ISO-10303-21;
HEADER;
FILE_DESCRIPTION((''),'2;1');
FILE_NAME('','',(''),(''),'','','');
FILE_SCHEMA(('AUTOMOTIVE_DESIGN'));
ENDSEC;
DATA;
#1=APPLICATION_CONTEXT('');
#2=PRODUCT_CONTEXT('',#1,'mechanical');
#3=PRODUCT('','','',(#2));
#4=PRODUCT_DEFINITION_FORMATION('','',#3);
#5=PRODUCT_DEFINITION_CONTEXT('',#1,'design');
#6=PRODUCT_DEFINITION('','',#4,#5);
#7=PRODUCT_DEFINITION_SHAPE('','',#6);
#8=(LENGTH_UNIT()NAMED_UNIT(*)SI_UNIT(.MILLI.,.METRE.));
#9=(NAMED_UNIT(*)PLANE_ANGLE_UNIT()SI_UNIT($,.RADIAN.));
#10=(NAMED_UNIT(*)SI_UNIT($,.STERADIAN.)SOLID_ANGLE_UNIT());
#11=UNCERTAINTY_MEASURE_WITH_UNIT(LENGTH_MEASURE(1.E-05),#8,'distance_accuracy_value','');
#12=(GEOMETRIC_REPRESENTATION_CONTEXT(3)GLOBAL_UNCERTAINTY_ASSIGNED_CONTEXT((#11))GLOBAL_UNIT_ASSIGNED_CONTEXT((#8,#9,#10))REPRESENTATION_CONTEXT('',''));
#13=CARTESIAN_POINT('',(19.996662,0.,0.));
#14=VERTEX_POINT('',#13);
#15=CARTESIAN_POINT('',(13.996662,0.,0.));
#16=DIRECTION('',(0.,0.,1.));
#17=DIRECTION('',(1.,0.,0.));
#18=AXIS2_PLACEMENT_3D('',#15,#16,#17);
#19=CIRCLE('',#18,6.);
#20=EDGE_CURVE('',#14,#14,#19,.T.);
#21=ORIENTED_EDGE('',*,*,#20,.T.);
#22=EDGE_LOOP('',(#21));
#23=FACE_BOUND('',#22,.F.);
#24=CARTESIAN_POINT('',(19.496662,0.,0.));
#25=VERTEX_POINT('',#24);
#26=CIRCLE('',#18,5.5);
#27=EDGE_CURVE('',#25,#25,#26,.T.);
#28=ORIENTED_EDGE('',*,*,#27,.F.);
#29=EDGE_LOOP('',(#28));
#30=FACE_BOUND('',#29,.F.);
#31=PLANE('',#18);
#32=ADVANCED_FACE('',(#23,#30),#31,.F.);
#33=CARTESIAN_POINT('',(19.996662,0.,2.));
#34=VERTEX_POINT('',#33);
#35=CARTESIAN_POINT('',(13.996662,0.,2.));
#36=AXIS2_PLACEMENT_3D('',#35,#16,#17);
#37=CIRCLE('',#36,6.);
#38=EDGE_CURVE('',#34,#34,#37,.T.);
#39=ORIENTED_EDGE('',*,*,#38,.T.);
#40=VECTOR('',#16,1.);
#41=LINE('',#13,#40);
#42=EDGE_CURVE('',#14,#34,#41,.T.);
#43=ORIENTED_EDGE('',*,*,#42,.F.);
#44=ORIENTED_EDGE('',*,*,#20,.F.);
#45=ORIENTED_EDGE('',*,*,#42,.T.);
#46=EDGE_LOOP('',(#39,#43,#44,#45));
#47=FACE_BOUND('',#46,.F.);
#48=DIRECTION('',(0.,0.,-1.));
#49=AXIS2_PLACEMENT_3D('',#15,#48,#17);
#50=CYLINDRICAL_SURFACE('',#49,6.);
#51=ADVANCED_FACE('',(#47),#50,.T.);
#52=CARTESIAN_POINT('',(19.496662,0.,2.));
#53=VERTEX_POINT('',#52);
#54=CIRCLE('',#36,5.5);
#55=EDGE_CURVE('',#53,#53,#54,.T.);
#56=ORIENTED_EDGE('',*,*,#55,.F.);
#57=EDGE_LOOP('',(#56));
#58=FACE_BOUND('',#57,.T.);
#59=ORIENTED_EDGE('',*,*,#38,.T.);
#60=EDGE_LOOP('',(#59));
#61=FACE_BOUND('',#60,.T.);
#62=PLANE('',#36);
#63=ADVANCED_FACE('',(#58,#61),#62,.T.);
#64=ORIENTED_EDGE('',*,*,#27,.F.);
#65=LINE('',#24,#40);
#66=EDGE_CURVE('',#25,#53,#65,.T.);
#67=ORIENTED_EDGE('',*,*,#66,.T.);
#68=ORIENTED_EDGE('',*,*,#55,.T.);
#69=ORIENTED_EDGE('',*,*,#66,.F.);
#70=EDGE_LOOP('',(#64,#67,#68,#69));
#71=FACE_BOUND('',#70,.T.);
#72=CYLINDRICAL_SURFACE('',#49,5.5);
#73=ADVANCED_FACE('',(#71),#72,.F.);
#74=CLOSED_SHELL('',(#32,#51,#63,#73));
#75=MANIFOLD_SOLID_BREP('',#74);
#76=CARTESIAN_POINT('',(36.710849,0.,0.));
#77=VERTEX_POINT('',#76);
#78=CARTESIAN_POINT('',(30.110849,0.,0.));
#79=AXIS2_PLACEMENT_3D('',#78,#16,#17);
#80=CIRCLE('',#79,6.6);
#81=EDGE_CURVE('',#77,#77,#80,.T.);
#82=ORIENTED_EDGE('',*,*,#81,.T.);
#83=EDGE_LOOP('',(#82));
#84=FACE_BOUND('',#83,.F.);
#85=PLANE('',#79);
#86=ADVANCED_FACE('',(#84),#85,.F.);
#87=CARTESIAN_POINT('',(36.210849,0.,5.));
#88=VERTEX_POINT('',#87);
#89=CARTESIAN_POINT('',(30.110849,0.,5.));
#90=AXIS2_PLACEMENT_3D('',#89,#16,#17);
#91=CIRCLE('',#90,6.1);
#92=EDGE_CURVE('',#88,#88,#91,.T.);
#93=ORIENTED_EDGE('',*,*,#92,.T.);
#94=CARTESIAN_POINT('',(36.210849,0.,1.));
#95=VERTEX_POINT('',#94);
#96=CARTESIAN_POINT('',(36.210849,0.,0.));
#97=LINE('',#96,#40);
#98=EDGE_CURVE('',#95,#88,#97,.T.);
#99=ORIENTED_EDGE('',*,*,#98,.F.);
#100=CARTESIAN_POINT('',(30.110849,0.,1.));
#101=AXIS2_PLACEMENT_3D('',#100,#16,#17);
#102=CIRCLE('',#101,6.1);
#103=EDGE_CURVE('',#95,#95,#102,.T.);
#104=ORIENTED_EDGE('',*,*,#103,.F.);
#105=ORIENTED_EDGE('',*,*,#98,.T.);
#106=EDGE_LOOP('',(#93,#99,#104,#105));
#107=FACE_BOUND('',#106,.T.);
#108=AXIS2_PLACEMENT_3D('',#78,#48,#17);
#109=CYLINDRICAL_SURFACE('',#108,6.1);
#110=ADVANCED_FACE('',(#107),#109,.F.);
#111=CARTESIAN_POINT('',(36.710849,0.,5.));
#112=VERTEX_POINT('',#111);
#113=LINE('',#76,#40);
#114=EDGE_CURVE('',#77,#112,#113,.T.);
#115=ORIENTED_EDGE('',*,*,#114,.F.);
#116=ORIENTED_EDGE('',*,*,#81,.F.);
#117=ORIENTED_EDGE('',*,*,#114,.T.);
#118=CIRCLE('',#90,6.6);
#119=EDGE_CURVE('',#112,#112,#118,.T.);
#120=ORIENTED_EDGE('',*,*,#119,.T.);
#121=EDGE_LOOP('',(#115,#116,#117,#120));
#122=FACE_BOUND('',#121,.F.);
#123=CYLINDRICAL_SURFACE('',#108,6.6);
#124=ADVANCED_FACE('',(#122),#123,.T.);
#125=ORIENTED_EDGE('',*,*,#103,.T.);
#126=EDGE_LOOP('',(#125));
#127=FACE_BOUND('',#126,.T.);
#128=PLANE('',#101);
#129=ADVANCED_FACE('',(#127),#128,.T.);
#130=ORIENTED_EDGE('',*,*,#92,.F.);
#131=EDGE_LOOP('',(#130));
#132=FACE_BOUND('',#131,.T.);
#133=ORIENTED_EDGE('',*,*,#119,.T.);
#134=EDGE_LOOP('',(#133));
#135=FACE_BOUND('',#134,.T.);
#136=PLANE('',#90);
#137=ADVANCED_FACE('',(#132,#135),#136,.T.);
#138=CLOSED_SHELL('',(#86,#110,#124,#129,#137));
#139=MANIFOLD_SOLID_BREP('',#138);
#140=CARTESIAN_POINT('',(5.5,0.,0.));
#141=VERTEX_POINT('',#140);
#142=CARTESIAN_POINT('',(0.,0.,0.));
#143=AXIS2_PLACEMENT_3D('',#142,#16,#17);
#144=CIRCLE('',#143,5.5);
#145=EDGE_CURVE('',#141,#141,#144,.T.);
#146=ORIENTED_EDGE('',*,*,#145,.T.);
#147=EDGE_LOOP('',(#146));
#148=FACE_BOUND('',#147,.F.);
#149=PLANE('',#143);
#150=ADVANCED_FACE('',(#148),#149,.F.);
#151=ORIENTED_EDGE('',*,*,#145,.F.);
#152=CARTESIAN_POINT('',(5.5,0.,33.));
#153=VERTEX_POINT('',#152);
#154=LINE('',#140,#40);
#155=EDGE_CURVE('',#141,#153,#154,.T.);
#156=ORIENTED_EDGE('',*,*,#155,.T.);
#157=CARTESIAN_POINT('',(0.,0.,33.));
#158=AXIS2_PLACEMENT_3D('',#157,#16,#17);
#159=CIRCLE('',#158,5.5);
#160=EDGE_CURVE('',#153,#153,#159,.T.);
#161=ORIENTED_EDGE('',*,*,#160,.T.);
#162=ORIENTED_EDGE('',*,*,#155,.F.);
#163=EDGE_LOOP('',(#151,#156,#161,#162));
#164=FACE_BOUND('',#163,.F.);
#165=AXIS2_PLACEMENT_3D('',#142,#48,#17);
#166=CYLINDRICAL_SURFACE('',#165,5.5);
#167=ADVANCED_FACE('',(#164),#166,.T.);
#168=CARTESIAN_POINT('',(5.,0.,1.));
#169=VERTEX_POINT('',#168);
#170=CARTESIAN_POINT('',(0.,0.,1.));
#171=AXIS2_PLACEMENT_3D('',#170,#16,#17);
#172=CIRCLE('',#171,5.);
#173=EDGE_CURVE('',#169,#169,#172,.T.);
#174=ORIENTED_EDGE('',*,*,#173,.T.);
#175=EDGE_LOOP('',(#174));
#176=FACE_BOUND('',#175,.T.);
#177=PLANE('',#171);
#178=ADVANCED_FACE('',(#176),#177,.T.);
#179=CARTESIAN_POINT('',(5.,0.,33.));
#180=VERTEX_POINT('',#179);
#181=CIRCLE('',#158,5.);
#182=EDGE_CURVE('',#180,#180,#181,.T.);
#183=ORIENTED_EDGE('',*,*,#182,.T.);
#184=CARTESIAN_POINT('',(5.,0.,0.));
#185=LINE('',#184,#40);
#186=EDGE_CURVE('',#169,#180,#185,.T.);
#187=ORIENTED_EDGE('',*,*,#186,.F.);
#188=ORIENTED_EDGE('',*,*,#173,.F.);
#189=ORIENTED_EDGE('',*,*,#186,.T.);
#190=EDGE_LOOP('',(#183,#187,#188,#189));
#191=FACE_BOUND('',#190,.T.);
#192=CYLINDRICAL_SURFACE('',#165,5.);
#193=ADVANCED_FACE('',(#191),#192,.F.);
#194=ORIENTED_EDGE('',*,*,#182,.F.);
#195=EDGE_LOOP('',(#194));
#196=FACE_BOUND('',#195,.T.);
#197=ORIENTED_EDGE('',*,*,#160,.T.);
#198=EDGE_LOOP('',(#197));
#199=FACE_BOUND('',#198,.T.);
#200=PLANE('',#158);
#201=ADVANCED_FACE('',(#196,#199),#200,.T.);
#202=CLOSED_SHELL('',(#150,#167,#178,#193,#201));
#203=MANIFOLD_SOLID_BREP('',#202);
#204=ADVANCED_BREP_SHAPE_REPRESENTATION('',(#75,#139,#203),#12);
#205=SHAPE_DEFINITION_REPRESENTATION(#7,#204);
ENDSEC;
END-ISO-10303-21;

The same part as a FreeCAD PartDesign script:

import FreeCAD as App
import Part
import Sketcher
from FreeCAD import Vector

doc = App.newDocument("Part")
body = doc.addObject("PartDesign::Body", "Body")

# Sketch on XY plane
sketch1 = body.newObject("Sketcher::SketchObject", "Sketch")
sketch1.AttachmentSupport = (doc.getObject("XY_Plane"), [""])
sketch1.MapMode = "FlatFace"
sketch1.addGeometry([
    Part.Circle(Vector(0, 0, 0), Vector(0, 0, 1), 6),
    Part.Circle(Vector(0, 0, 0), Vector(0, 0, 1), 5),
], False)
sketch1.addConstraint([
    Sketcher.Constraint("Coincident", 0, 3, -1, 1),
    Sketcher.Constraint("Coincident", 1, 3, -1, 1),
    Sketcher.Constraint("Diameter", 0, 11.0),
    Sketcher.Constraint("Diameter", 1, 10.0),
])
pad1 = body.newObject("PartDesign::Pad", "Pad")
pad1.Profile = sketch1
pad1.Length = 33

# Sketch on XY plane
sketch2 = body.newObject("Sketcher::SketchObject", "Sketch001")
sketch2.AttachmentSupport = (doc.getObject("XY_Plane"), [""])
sketch2.MapMode = "FlatFace"
sketch2.addGeometry(Part.Circle(Vector(0, 0, 0), Vector(0, 0, 1), 5), False)
sketch2.addConstraint([
    Sketcher.Constraint("Coincident", 0, 3, -1, 1),
    Sketcher.Constraint("Diameter", 0, 10.0),
])
pad2 = body.newObject("PartDesign::Pad", "Pad001")
pad2.Profile = sketch2
pad2.Length = 1
body2 = doc.addObject("PartDesign::Body", "Body001")

# Sketch on XY plane
sketch3 = body2.newObject("Sketcher::SketchObject", "Sketch002")
sketch3.AttachmentSupport = (doc.getObject("XY_Plane001"), [""])
sketch3.MapMode = "FlatFace"
sketch3.addGeometry([
    Part.Circle(Vector(14, 0, 0), Vector(0, 0, 1), 6),
    Part.Circle(Vector(14, 0, 0), Vector(0, 0, 1), 6),
], False)
sketch3.addConstraint([
    Sketcher.Constraint("Coincident", 1, 3, 0, 3),
    Sketcher.Constraint("PointOnObject", 0, 3, -1),
    Sketcher.Constraint("Diameter", 0, 12.0),
    Sketcher.Constraint("Diameter", 1, 11.0),
    Sketcher.Constraint("DistanceX", -1, 1, 0, 3, 13.996662),
])
pad3 = body2.newObject("PartDesign::Pad", "Pad002")
pad3.Profile = sketch3
pad3.Length = 2
body3 = doc.addObject("PartDesign::Body", "Body002")

# Sketch on XY plane
sketch4 = body3.newObject("Sketcher::SketchObject", "Sketch003")
sketch4.AttachmentSupport = (doc.getObject("XY_Plane002"), [""])
sketch4.MapMode = "FlatFace"
sketch4.addGeometry([
    Part.Circle(Vector(30, 0, 0), Vector(0, 0, 1), 7),
    Part.Circle(Vector(30, 0, 0), Vector(0, 0, 1), 6),
], False)
sketch4.addConstraint([
    Sketcher.Constraint("Coincident", 1, 3, 0, 3),
    Sketcher.Constraint("PointOnObject", 0, 3, -1),
    Sketcher.Constraint("Diameter", 0, 13.2),
    Sketcher.Constraint("Diameter", 1, 12.2),
    Sketcher.Constraint("DistanceX", -1, 1, 0, 3, 30.110849),
])
pad4 = body3.newObject("PartDesign::Pad", "Pad003")
pad4.Profile = sketch4
pad4.Length = 5

# Sketch on XY plane
sketch5 = body3.newObject("Sketcher::SketchObject", "Sketch004")
sketch5.AttachmentSupport = (doc.getObject("XY_Plane002"), [""])
sketch5.MapMode = "FlatFace"
sketch5.addGeometry(Part.Circle(Vector(30, 0, 0), Vector(0, 0, 1), 6), False)
sketch5.addConstraint([
    Sketcher.Constraint("PointOnObject", 0, 3, -1),
    Sketcher.Constraint("Diameter", 0, 12.2),
    Sketcher.Constraint("DistanceX", -1, 1, 0, 3, 30.110849),
])
pad5 = body3.newObject("PartDesign::Pad", "Pad004")
pad5.Profile = sketch5
pad5.Length = 1

doc.recompute()
